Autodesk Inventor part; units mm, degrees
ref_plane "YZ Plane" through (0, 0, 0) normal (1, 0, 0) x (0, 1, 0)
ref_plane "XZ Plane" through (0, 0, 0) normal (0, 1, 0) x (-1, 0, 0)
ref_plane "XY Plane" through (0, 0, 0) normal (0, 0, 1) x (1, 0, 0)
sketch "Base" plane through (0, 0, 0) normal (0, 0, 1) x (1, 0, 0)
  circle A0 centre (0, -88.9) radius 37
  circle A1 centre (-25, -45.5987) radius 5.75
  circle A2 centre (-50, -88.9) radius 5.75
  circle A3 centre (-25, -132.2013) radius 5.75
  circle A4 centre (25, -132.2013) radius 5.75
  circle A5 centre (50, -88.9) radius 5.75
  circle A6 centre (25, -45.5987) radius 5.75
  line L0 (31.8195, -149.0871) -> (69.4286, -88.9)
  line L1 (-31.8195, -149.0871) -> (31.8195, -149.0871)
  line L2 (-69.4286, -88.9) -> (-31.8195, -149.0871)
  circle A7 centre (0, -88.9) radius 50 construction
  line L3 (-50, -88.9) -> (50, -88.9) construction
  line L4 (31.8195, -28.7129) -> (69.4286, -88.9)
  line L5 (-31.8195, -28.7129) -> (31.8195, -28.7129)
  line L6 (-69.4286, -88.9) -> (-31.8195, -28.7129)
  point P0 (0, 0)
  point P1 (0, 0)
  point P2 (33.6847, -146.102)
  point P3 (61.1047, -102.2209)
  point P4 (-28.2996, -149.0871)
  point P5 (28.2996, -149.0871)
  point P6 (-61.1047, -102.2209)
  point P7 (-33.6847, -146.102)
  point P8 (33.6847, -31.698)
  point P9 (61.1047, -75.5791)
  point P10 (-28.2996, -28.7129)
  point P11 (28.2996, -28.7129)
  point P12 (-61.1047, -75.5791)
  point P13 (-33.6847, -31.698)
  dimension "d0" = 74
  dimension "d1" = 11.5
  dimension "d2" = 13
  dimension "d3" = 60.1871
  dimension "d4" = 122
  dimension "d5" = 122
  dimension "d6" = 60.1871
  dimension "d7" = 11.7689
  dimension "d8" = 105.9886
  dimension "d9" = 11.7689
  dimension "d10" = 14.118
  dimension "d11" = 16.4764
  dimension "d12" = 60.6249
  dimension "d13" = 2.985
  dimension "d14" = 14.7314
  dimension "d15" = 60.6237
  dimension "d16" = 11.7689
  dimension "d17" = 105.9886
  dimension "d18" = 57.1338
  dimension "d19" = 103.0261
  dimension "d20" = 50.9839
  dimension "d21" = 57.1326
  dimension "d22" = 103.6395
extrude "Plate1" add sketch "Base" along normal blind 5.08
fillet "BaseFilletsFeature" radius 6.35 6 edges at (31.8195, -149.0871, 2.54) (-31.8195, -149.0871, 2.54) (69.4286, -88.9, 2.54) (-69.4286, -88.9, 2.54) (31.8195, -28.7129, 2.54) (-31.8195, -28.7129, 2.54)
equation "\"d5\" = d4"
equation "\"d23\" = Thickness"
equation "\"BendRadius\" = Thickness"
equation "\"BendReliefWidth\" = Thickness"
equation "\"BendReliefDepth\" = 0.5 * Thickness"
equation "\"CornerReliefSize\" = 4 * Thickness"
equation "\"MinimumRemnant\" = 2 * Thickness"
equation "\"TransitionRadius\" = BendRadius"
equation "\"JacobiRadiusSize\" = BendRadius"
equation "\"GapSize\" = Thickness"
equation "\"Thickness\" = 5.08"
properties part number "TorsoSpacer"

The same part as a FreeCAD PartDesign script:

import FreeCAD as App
import Part
import Sketcher
Q = App.Units.Quantity


def edges_at(feature, points):
    """Names of the edges that pass closest to the given points."""
    edges = feature.Shape.Edges
    near = lambda p: min(range(len(edges)), key=lambda i: edges[i].distToShape(Part.Vertex(*p))[0])
    return sorted({f"Edge{near(p) + 1}" for p in points})

doc = App.newDocument("Part")
params = doc.addObject("Spreadsheet::Sheet", "Params")
for row, (alias, value) in enumerate([
    ("sketch1_diameter", "74 mm"),
    ("sketch1_diameter2", "11.5 mm"),
    ("pad1_length", "5.08 mm"),
    ("fillet_radius", "6.35 mm"),
], start=1):
    params.set(f"A{row}", alias)
    params.set(f"B{row}", "=" + value)
    params.setAlias(f"B{row}", alias)

body = doc.addObject("PartDesign::Body", "Body")

# Sketch on XY plane
sketch1 = body.newObject("Sketcher::SketchObject", "Sketch")
sketch1.AttachmentSupport = (doc.getObject("XY_Plane"), [""])
sketch1.MapMode = "FlatFace"
sketch1.addGeometry(Part.LineSegment(App.Vector(-32, -149, 0), App.Vector(32, -149, 0)), False)
sketch1.addGeometry(Part.LineSegment(App.Vector(32, -149, 0), App.Vector(69, -89, 0)), False)
sketch1.addGeometry(Part.LineSegment(App.Vector(69, -89, 0), App.Vector(32, -29, 0)), False)
sketch1.addGeometry(Part.LineSegment(App.Vector(32, -29, 0), App.Vector(-32, -29, 0)), False)
sketch1.addGeometry(Part.LineSegment(App.Vector(-32, -29, 0), App.Vector(-69, -89, 0)), False)
sketch1.addGeometry(Part.LineSegment(App.Vector(-69, -89, 0), App.Vector(-32, -149, 0)), False)
sketch1.addGeometry(Part.Circle(App.Vector(-25, -132, 0), App.Vector(0, 0, 1), 6), False)
sketch1.addGeometry(Part.Circle(App.Vector(-50, -89, 0), App.Vector(0, 0, 1), 6), False)
sketch1.addGeometry(Part.Circle(App.Vector(25, -132, 0), App.Vector(0, 0, 1), 6), False)
sketch1.addGeometry(Part.Circle(App.Vector(0, -89, 0), App.Vector(0, 0, 1), 37), False)
sketch1.addGeometry(Part.Circle(App.Vector(50, -89, 0), App.Vector(0, 0, 1), 6), False)
sketch1.addGeometry(Part.Circle(App.Vector(-25, -46, 0), App.Vector(0, 0, 1), 6), False)
sketch1.addGeometry(Part.Circle(App.Vector(25, -46, 0), App.Vector(0, 0, 1), 6), False)
sketch1.addConstraint(Sketcher.Constraint("Coincident", 0, 2, 1, 1))
sketch1.addConstraint(Sketcher.Constraint("Coincident", 1, 2, 2, 1))
sketch1.addConstraint(Sketcher.Constraint("Coincident", 2, 2, 3, 1))
sketch1.addConstraint(Sketcher.Constraint("Coincident", 3, 2, 4, 1))
sketch1.addConstraint(Sketcher.Constraint("Coincident", 4, 2, 5, 1))
sketch1.addConstraint(Sketcher.Constraint("Coincident", 5, 2, 0, 1))
sketch1.addConstraint(Sketcher.Constraint("Horizontal", 0))
sketch1.addConstraint(Sketcher.Constraint("Horizontal", 3))
sketch1.addConstraint(Sketcher.Constraint("Equal", 6, 7))
sketch1.addConstraint(Sketcher.Constraint("Equal", 7, 8))
sketch1.addConstraint(Sketcher.Constraint("Equal", 8, 10))
sketch1.addConstraint(Sketcher.Constraint("Equal", 10, 11))
sketch1.addConstraint(Sketcher.Constraint("Equal", 11, 12))
sketch1.addConstraint(Sketcher.Constraint("Symmetric", 6, 3, 8, 3, -2))
sketch1.addConstraint(Sketcher.Constraint("Symmetric", 7, 3, 10, 3, -2))
sketch1.addConstraint(Sketcher.Constraint("Symmetric", 11, 3, 12, 3, -2))
sketch1.addConstraint(Sketcher.Constraint("Symmetric", 1, 2, 4, 2, -2))
sketch1.addConstraint(Sketcher.Constraint("PointOnObject", 9, 3, -2))
sketch1.addConstraint(Sketcher.Constraint("Parallel", 1, 4))
sketch1.addConstraint(Sketcher.Constraint("Parallel", 2, 5))
sketch1.addConstraint(Sketcher.Constraint("Horizontal", 7, 3, 9, 3))
sketch1.addConstraint(Sketcher.Constraint("Horizontal", 10, 3, 1, 2))
sketch1.addConstraint(Sketcher.Constraint("Vertical", 6, 3, 11, 3))
sketch1.addConstraint(Sketcher.Constraint("Vertical", 0, 2, 2, 2))
sketch1.addConstraint(Sketcher.Constraint("Vertical", 3, 2, 5, 2))
sketch1.addConstraint(Sketcher.Constraint("Diameter", 9, Q("74 mm")))
sketch1.addConstraint(Sketcher.Constraint("Diameter", 6, Q("11.5 mm")))
sketch1.addConstraint(Sketcher.Constraint("Angle", 2, Q("122 deg")))
sketch1.addConstraint(Sketcher.Constraint("DistanceX", 6, 3, -1, 1, Q("25 mm")))
sketch1.addConstraint(Sketcher.Constraint("DistanceX", 7, 3, -1, 1, Q("50 mm")))
sketch1.addConstraint(Sketcher.Constraint("DistanceY", 0, 2, 10, 3, Q("60.187 mm")))
sketch1.addConstraint(Sketcher.Constraint("DistanceY", 7, 3, -1, 1, Q("88.9 mm")))
sketch1.addConstraint(Sketcher.Constraint("DistanceX", 0, 1, 0, 2, Q("63.639 mm")))
sketch1.addConstraint(Sketcher.Constraint("DistanceY", 6, 3, -1, 1, Q("132.2013 mm")))
sketch1.addConstraint(Sketcher.Constraint("DistanceY", 11, 3, -1, 1, Q("45.5987 mm")))
sketch1.setExpression("Constraints[25]", "Params.sketch1_diameter")
sketch1.setExpression("Constraints[26]", "Params.sketch1_diameter2")
pad1 = body.newObject("PartDesign::Pad", "Pad")
pad1.Profile = sketch1
pad1.setExpression("Length", "Params.pad1_length")
doc.recompute()

fillet = body.newObject("PartDesign::Fillet", "Fillet")
fillet.Base = (pad1, edges_at(pad1, [
    (31.82, -149.087, 2.54),
    (-31.82, -149.087, 2.54),
    (69.429, -88.9, 2.54),
    (-69.429, -88.9, 2.54),
    (31.82, -28.713, 2.54),
    (-31.82, -28.713, 2.54),
]))
fillet.setExpression("Radius", "Params.fillet_radius")

doc.recompute()
